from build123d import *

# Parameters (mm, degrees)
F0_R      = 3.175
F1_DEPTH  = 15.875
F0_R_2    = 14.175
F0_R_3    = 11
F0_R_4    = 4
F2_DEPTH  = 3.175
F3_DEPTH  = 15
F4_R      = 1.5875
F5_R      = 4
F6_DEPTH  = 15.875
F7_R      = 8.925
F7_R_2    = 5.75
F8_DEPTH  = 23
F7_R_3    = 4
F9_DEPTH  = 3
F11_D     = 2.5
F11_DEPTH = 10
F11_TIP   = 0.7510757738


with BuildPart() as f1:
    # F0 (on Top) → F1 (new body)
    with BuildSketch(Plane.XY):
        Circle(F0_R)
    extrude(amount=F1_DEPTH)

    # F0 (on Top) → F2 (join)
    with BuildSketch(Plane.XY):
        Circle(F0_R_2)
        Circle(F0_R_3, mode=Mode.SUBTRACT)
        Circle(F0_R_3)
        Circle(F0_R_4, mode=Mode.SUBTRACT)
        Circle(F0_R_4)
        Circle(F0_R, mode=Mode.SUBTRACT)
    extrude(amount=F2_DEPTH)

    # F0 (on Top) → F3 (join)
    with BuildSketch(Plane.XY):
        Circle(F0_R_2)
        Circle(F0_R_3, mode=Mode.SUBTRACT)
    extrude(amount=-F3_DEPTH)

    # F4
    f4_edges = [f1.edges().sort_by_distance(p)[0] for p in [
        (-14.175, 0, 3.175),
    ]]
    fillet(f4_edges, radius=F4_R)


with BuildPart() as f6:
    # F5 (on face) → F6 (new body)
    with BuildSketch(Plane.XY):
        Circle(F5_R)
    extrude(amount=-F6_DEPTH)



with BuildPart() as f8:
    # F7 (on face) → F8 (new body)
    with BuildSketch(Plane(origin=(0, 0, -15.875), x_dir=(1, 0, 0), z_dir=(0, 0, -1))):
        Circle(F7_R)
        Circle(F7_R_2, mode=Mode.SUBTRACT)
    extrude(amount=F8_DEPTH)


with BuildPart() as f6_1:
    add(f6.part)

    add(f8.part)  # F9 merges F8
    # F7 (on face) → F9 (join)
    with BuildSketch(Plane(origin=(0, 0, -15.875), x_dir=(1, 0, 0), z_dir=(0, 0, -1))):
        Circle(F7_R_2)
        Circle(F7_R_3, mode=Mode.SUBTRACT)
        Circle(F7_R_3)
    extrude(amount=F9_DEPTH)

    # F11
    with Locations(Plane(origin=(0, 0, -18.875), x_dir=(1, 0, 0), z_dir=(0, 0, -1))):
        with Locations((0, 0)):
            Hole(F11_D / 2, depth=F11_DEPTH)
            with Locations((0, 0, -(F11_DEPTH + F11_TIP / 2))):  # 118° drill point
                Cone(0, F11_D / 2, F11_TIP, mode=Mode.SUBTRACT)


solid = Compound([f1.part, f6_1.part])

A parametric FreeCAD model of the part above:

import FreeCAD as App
import Part
import Sketcher

V = App.Vector


def edges_at(feature, points):
    """Names of the edges that pass closest to the given points."""
    edges = feature.Shape.Edges
    near = lambda p: min(range(len(edges)), key=lambda i: edges[i].distToShape(Part.Vertex(*p))[0])
    return sorted({f"Edge{near(p) + 1}" for p in points})

doc = App.newDocument("Part")
body = doc.addObject("PartDesign::Body", "Body")

sketch1 = body.newObject("Sketcher::SketchObject", "Sketch")
sketch1.AttachmentSupport = (doc.getObject("XY_Plane"), [""])
sketch1.MapMode = "FlatFace"
sketch1.addGeometry(Part.Circle(V(0, 0, 0), V(0, 0, 1), 3.2), False)
sketch1.addConstraint([
    Sketcher.Constraint("Coincident", 0, 3, -1, 1),
    Sketcher.Constraint("Diameter", 0, 6.35),
])
pad1 = body.newObject("PartDesign::Pad", "Pad")
pad1.Profile = sketch1
pad1.Length = 15.875

sketch2 = body.newObject("Sketcher::SketchObject", "Sketch001")
sketch2.AttachmentSupport = (doc.getObject("XY_Plane"), [""])
sketch2.MapMode = "FlatFace"
sketch2.addGeometry([
    Part.Circle(V(0, 0, 0), V(0, 0, 1), 14.2),
    Part.Circle(V(0, 0, 0), V(0, 0, 1), 3.2),
], False)
sketch2.addConstraint([
    Sketcher.Constraint("Coincident", 0, 3, -1, 1),
    Sketcher.Constraint("Coincident", 1, 3, -1, 1),
    Sketcher.Constraint("Diameter", 0, 28.35),
    Sketcher.Constraint("Diameter", 1, 6.35),
])
pad2 = body.newObject("PartDesign::Pad", "Pad001")
pad2.Profile = sketch2
pad2.Length = 3.175

sketch3 = body.newObject("Sketcher::SketchObject", "Sketch002")
sketch3.AttachmentSupport = (doc.getObject("XY_Plane"), [""])
sketch3.MapMode = "FlatFace"
sketch3.addGeometry([
    Part.Circle(V(0, 0, 0), V(0, 0, 1), 14),
    Part.Circle(V(0, 0, 0), V(0, 0, 1), 11),
], False)
sketch3.addConstraint([
    Sketcher.Constraint("Coincident", 0, 3, -1, 1),
    Sketcher.Constraint("Coincident", 1, 3, -1, 1),
    Sketcher.Constraint("Diameter", 1, 22.0),
    Sketcher.Constraint("Diameter", 0, 28.35),
])
pad3 = body.newObject("PartDesign::Pad", "Pad002")
pad3.Profile = sketch3
pad3.Length = 15
pad3.Reversed = True
doc.recompute()

fillet = body.newObject("PartDesign::Fillet", "Fillet")
fillet.Base = (pad3, edges_at(pad3, [(-14.175, 0, 3.175)]))
fillet.Radius = 1.5875
body2 = doc.addObject("PartDesign::Body", "Body001")

sketch4 = body2.newObject("Sketcher::SketchObject", "Sketch003")
sketch4.AttachmentSupport = (doc.getObject("XY_Plane001"), [""])
sketch4.MapMode = "FlatFace"
sketch4.addGeometry(Part.Circle(V(0, 0, 0), V(0, 0, 1), 4), False)
sketch4.addConstraint([
    Sketcher.Constraint("Coincident", 0, 3, -1, 1),
    Sketcher.Constraint("Diameter", 0, 8.0),
])
pad4 = body2.newObject("PartDesign::Pad", "Pad003")
pad4.Profile = sketch4
pad4.Length = 15.875
pad4.Reversed = True
body3 = doc.addObject("PartDesign::Body", "Body002")

sketch5 = body3.newObject("Sketcher::SketchObject", "Sketch004")
sketch5.AttachmentSupport = (doc.getObject("XY_Plane002"), [""])
sketch5.MapMode = "FlatFace"
sketch5.AttachmentOffset = App.Placement(V(0, 0, -15.875), App.Rotation())
sketch5.addGeometry([
    Part.Circle(V(0, 0, 0), V(0, 0, 1), 9),
    Part.Circle(V(0, 0, 0), V(0, 0, 1), 6),
], False)
sketch5.addConstraint([
    Sketcher.Constraint("Coincident", 0, 3, -1, 1),
    Sketcher.Constraint("Coincident", 1, 3, -1, 1),
    Sketcher.Constraint("Diameter", 1, 11.5),
    Sketcher.Constraint("Diameter", 0, 17.85),
])
pad5 = body3.newObject("PartDesign::Pad", "Pad004")
pad5.Profile = sketch5
pad5.Length = 23
pad5.Reversed = True
body2.AllowCompound = True
doc.recompute()

boolean = body2.newObject("PartDesign::Boolean", "Boolean")
boolean.Type = "Fuse"
boolean.addObjects([body3])

sketch6 = body2.newObject("Sketcher::SketchObject", "Sketch005")
sketch6.AttachmentSupport = (doc.getObject("XY_Plane001"), [""])
sketch6.MapMode = "FlatFace"
sketch6.AttachmentOffset = App.Placement(V(0, 0, -15.875), App.Rotation())
sketch6.addGeometry(Part.Circle(V(0, 0, 0), V(0, 0, 1), 6), False)
sketch6.addConstraint([
    Sketcher.Constraint("Coincident", 0, 3, -1, 1),
    Sketcher.Constraint("Diameter", 0, 11.5),
])
pad6 = body2.newObject("PartDesign::Pad", "Pad005")
pad6.Profile = sketch6
pad6.Length = 3
pad6.Reversed = True

sketch7 = body2.newObject("Sketcher::SketchObject", "Sketch006")
sketch7.AttachmentSupport = (doc.getObject("XY_Plane001"), [""])
sketch7.MapMode = "FlatFace"
sketch7.AttachmentOffset = App.Placement(V(0, 0, -18.875), App.Rotation())
sketch7.addGeometry(Part.Circle(V(0, 0, 0), V(0, 0, 1), 1.2), False)
sketch7.addConstraint([
    Sketcher.Constraint("Coincident", 0, 3, -1, 1),
    Sketcher.Constraint("Diameter", 0, 2.5),
])
doc.recompute()
hole = body2.newObject("PartDesign::Hole", "Hole")
hole.Profile = sketch7
hole.ThreadType = "None"
hole.Diameter = 2.5
hole.DepthType = "Dimension"
hole.Depth = 10
hole.DrillPoint = "Angled"
hole.DrillPointAngle = 118
hole.Reversed = True

doc.recompute()
